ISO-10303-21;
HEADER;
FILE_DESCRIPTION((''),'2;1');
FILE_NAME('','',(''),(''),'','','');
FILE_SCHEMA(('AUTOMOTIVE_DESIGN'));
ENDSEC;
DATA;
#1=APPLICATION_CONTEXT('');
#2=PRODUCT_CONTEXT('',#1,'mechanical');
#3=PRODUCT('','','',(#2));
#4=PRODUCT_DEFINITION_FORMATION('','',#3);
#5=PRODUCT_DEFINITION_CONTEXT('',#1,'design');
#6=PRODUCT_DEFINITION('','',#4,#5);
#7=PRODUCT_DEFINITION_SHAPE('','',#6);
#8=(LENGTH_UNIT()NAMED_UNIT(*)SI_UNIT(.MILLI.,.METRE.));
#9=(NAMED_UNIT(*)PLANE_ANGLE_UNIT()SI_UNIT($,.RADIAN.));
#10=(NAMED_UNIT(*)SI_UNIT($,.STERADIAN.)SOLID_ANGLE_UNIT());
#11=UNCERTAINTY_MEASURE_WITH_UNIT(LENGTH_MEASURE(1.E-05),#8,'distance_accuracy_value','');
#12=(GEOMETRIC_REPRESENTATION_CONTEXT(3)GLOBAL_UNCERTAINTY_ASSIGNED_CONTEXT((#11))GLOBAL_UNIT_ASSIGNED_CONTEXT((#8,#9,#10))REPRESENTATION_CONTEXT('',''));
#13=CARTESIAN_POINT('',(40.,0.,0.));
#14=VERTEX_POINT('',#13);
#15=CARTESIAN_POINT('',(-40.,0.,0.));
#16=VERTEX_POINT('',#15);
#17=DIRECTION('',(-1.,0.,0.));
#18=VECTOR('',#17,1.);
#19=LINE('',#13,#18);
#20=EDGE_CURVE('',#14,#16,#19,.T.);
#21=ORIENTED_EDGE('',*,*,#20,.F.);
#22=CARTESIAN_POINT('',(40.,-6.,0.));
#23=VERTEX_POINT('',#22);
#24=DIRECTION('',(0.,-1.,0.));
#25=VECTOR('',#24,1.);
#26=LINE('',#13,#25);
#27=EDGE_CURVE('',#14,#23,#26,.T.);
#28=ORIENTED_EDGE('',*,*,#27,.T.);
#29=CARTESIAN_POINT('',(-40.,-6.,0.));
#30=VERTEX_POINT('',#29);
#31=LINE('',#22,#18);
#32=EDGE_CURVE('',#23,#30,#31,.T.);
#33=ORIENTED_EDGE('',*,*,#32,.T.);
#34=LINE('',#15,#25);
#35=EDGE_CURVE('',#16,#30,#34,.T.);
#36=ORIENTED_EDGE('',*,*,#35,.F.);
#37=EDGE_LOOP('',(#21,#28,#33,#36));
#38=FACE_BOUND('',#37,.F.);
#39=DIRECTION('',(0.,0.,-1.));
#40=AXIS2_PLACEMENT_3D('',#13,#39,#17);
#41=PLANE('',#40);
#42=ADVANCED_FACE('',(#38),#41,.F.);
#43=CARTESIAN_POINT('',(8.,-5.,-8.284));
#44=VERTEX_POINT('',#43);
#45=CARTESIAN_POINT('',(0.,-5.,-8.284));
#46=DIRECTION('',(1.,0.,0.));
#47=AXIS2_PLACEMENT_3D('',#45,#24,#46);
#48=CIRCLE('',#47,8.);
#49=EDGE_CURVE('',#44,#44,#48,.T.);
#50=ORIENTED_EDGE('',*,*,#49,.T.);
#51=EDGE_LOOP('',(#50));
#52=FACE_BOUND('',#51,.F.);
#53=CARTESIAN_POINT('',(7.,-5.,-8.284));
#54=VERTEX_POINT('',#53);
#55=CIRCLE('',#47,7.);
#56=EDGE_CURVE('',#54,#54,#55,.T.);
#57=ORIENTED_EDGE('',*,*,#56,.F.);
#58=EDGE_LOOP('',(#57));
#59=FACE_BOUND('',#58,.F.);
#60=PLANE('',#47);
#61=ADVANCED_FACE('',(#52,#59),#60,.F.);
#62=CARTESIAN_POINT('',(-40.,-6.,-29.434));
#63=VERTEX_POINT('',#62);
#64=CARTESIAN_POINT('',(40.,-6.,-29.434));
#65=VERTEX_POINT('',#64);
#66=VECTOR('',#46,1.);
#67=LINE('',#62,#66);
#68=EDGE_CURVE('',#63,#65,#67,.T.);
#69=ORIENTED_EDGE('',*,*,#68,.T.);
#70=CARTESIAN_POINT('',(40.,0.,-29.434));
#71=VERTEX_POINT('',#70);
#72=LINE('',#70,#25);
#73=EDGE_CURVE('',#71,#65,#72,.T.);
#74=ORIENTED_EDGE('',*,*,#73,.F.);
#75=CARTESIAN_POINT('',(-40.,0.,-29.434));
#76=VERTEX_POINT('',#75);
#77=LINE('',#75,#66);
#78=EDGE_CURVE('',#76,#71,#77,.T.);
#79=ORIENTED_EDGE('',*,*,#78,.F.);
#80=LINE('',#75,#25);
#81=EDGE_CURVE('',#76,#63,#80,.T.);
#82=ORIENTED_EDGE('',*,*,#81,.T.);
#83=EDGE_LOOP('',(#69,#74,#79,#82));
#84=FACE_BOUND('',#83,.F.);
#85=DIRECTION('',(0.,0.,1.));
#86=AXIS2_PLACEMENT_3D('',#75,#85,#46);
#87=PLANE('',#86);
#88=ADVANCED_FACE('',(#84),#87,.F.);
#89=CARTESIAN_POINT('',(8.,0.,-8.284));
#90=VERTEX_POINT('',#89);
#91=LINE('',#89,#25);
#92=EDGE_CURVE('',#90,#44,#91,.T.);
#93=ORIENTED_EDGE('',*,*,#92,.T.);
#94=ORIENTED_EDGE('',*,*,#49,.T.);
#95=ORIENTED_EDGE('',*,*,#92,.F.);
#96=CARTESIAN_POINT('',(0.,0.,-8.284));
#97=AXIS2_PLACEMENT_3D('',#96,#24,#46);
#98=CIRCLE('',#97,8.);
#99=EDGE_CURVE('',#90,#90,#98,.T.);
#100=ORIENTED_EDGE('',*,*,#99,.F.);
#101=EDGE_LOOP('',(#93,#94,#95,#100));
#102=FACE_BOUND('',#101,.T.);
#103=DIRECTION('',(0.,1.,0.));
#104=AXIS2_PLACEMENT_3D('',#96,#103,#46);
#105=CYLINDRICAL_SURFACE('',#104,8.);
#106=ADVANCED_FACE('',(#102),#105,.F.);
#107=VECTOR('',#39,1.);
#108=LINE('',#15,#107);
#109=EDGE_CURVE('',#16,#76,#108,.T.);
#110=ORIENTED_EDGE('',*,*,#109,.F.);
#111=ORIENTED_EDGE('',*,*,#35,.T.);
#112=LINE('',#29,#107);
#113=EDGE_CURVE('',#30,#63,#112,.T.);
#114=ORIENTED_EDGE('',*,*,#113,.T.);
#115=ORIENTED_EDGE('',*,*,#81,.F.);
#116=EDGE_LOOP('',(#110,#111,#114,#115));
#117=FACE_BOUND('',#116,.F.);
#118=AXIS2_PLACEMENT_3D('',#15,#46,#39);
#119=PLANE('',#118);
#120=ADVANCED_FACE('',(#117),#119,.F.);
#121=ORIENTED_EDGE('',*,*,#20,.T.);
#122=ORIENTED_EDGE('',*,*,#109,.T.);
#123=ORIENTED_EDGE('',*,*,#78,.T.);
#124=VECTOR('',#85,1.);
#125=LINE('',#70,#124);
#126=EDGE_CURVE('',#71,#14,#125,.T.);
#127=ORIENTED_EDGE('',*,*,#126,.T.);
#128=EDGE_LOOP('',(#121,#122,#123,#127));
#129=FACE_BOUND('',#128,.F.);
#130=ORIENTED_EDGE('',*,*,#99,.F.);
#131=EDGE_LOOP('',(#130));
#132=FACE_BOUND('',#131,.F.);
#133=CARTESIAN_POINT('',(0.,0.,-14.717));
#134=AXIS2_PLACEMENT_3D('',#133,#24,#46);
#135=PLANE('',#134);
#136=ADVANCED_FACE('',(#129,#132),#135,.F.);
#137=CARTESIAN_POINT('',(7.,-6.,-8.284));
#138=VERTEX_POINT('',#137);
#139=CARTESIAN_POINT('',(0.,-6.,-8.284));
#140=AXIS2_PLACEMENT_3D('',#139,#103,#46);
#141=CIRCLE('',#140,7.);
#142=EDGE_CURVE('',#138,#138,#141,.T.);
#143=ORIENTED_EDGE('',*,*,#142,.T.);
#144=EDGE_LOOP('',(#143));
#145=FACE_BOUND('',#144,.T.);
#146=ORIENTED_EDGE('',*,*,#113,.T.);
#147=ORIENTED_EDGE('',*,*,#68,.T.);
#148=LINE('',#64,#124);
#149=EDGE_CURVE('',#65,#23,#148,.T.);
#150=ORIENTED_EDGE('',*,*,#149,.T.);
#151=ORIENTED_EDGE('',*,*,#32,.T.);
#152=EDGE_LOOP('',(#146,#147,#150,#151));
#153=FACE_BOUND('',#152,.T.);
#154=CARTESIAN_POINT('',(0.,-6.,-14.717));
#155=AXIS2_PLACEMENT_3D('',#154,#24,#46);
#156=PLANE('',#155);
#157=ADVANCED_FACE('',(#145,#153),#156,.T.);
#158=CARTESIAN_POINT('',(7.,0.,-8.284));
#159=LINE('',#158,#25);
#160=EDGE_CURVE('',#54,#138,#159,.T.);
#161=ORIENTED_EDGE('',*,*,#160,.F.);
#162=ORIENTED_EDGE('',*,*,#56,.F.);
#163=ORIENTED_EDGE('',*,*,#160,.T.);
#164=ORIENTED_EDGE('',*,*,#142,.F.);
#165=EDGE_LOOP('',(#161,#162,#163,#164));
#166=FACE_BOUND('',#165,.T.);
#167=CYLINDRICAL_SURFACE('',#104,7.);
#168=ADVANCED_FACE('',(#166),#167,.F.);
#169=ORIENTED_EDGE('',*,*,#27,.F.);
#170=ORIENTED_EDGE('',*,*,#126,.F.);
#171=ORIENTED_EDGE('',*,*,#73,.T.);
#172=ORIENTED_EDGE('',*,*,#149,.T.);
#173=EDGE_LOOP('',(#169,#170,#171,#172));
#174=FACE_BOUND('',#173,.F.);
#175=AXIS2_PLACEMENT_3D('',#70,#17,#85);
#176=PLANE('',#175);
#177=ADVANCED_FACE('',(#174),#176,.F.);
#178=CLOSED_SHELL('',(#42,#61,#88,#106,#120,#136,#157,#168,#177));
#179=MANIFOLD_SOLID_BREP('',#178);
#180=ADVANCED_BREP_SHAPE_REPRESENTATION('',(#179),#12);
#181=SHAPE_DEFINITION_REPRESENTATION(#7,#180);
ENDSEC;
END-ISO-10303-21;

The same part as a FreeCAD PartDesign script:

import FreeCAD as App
import Part
import Sketcher
Q = App.Units.Quantity


def add_polygon(sketch, points):
    """Adds a closed chain of lines whose ends are joined by coincident constraints."""
    first, n = sketch.GeometryCount, len(points)
    for a, b in zip(points, points[1:] + points[:1]):
        sketch.addGeometry(Part.LineSegment(App.Vector(*a, 0), App.Vector(*b, 0)), False)
    for i in range(n):
        sketch.addConstraint(Sketcher.Constraint("Coincident", first + i, 2, first + (i + 1) % n, 1))

doc = App.newDocument("Part")
body = doc.addObject("PartDesign::Body", "Body")

# Sketch on XZ plane
sketch1 = body.newObject("Sketcher::SketchObject", "Sketch")
sketch1.AttachmentSupport = (doc.getObject("XZ_Plane"), [""])
sketch1.MapMode = "FlatFace"
add_polygon(sketch1, [(40, 0), (-40, 0), (-40, -29), (40, -29)])  # lines 0-3
sketch1.addConstraint(Sketcher.Constraint("Horizontal", 0))
sketch1.addConstraint(Sketcher.Constraint("Vertical", 1))
sketch1.addConstraint(Sketcher.Constraint("Horizontal", 2))
sketch1.addConstraint(Sketcher.Constraint("Vertical", 3))
sketch1.addConstraint(Sketcher.Constraint("Symmetric", 0, 2, 3, 2, -1, 1))
sketch1.addConstraint(Sketcher.Constraint("DistanceX", 0, 2, 0, 1, Q("80 mm")))
sketch1.addConstraint(Sketcher.Constraint("DistanceY", 1, 2, 1, 1, Q("29.434 mm")))
pad1 = body.newObject("PartDesign::Pad", "Pad")
pad1.Profile = sketch1
pad1.Length = 6

# Sketch on XZ plane
sketch2 = body.newObject("Sketcher::SketchObject", "Sketch001")
sketch2.AttachmentSupport = (doc.getObject("XZ_Plane"), [""])
sketch2.MapMode = "FlatFace"
sketch2.addGeometry(Part.Circle(App.Vector(0, -8, 0), App.Vector(0, 0, 1), 8), False)
sketch2.addGeometry(Part.Circle(App.Vector(0, -8, 0), App.Vector(0, 0, 1), 7), False)
sketch2.addConstraint(Sketcher.Constraint("Coincident", 1, 3, 0, 3))
sketch2.addConstraint(Sketcher.Constraint("PointOnObject", 0, 3, -2))
sketch2.addConstraint(Sketcher.Constraint("Diameter", 0, Q("16 mm")))
sketch2.addConstraint(Sketcher.Constraint("Diameter", 1, Q("14 mm")))
sketch2.addConstraint(Sketcher.Constraint("DistanceY", 0, 3, -1, 1, Q("8.284 mm")))
pocket1 = body.newObject("PartDesign::Pocket", "Pocket")
pocket1.Profile = sketch2
pocket1.Length = 5
pocket1.Reversed = True

# Sketch on XZ plane
sketch3 = body.newObject("Sketcher::SketchObject", "Sketch002")
sketch3.AttachmentSupport = (doc.getObject("XZ_Plane"), [""])
sketch3.MapMode = "FlatFace"
sketch3.addGeometry(Part.Circle(App.Vector(0, -8, 0), App.Vector(0, 0, 1), 7), False)
sketch3.addConstraint(Sketcher.Constraint("PointOnObject", 0, 3, -2))
sketch3.addConstraint(Sketcher.Constraint("Diameter", 0, Q("14 mm")))
sketch3.addConstraint(Sketcher.Constraint("DistanceY", 0, 3, -1, 1, Q("8.284 mm")))
pocket2 = body.newObject("PartDesign::Pocket", "Pocket001")
pocket2.Profile = sketch3
pocket2.Length = 26.3
pocket2.Reversed = True

doc.recompute()
